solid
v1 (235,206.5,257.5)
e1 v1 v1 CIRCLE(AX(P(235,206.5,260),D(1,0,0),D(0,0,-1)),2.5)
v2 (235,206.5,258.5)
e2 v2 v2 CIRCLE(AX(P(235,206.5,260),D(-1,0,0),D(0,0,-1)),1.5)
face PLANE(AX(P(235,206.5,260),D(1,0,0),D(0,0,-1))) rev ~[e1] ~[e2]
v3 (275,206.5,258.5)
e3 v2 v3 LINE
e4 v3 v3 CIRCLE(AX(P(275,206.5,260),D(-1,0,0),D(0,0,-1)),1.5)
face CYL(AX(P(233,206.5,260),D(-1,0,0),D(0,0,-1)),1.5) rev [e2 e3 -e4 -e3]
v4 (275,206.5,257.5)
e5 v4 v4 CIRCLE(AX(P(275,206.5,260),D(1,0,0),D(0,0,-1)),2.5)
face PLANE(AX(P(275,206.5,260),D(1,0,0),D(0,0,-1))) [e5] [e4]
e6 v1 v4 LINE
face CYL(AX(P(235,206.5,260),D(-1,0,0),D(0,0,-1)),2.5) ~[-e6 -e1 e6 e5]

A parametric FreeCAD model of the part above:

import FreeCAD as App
import Part
import Sketcher
Q = App.Units.Quantity

doc = App.newDocument("Part")
params = doc.addObject("Spreadsheet::Sheet", "Params")
for row, (alias, value) in enumerate([
    ("sketch1_diameter", "3 mm"),
    ("pad1_length", "44 mm"),
    ("sketch2_diameter", "5 mm"),
    ("pad2_length", "40 mm"),
], start=1):
    params.set(f"A{row}", alias)
    params.set(f"B{row}", "=" + value)
    params.setAlias(f"B{row}", alias)

body = doc.addObject("PartDesign::Body", "Body")

sketch1 = body.newObject("Sketcher::SketchObject", "Sketch")
sketch1.AttachmentSupport = (doc.getObject("XY_Plane"), [""])
sketch1.MapMode = "FlatFace"
sketch1.addGeometry(Part.Circle(App.Vector(0, 0, 0), App.Vector(0, 0, 1), 1.5), False)
sketch1.addConstraint([
    Sketcher.Constraint("Coincident", 0, 3, -1, 1),
    Sketcher.Constraint("Diameter", 0, Q("3 mm")),
])
sketch1.setExpression("Constraints[1]", "Params.sketch1_diameter")
pad1 = body.newObject("PartDesign::Pad", "Pad")
pad1.Profile = sketch1
pad1.setExpression("Length", "Params.pad1_length")
body2 = doc.addObject("PartDesign::Body", "Body001")
doc.recompute()

body.Placement = App.Placement(App.Vector(0, 0, 0), App.Rotation(App.Vector(0, 1, 0), 90))
boolean = body2.newObject("PartDesign::Boolean", "Boolean")
boolean.Type = "Fuse"
boolean.addObjects([body])
body3 = doc.addObject("PartDesign::Body", "Body002")
doc.recompute()

body2.Placement = App.Placement(App.Vector(-2, 0, 0), App.Rotation(App.Vector(0, 0, 1), 0))
boolean2 = body3.newObject("PartDesign::Boolean", "Boolean001")
boolean2.Type = "Fuse"
boolean2.addObjects([body2])
body4 = doc.addObject("PartDesign::Body", "Body003")

sketch2 = body4.newObject("Sketcher::SketchObject", "Sketch001")
sketch2.AttachmentSupport = (doc.getObject("XY_Plane003"), [""])
sketch2.MapMode = "FlatFace"
sketch2.addGeometry(Part.Circle(App.Vector(0, 0, 0), App.Vector(0, 0, 1), 2.5), False)
sketch2.addConstraint([
    Sketcher.Constraint("Coincident", 0, 3, -1, 1),
    Sketcher.Constraint("Diameter", 0, Q("5 mm")),
])
sketch2.setExpression("Constraints[1]", "Params.sketch2_diameter")
pad2 = body4.newObject("PartDesign::Pad", "Pad001")
pad2.Profile = sketch2
pad2.setExpression("Length", "Params.pad2_length")
body5 = doc.addObject("PartDesign::Body", "Body004")
doc.recompute()

body4.Placement = App.Placement(App.Vector(0, 0, 0), App.Rotation(App.Vector(0, 1, 0), 90))
boolean3 = body5.newObject("PartDesign::Boolean", "Boolean002")
boolean3.Type = "Fuse"
boolean3.addObjects([body4])
doc.recompute()

boolean4 = body5.newObject("PartDesign::Boolean", "Boolean003")
boolean4.Type = "Cut"
boolean4.addObjects([body3])
body6 = doc.addObject("PartDesign::Body", "Body005")
doc.recompute()

body5.Placement = App.Placement(App.Vector(235, 206.5, 260), App.Rotation(App.Vector(0, 0, 1), 0))
boolean5 = body6.newObject("PartDesign::Boolean", "Boolean004")
boolean5.Type = "Fuse"
boolean5.addObjects([body5])

doc.recompute()
